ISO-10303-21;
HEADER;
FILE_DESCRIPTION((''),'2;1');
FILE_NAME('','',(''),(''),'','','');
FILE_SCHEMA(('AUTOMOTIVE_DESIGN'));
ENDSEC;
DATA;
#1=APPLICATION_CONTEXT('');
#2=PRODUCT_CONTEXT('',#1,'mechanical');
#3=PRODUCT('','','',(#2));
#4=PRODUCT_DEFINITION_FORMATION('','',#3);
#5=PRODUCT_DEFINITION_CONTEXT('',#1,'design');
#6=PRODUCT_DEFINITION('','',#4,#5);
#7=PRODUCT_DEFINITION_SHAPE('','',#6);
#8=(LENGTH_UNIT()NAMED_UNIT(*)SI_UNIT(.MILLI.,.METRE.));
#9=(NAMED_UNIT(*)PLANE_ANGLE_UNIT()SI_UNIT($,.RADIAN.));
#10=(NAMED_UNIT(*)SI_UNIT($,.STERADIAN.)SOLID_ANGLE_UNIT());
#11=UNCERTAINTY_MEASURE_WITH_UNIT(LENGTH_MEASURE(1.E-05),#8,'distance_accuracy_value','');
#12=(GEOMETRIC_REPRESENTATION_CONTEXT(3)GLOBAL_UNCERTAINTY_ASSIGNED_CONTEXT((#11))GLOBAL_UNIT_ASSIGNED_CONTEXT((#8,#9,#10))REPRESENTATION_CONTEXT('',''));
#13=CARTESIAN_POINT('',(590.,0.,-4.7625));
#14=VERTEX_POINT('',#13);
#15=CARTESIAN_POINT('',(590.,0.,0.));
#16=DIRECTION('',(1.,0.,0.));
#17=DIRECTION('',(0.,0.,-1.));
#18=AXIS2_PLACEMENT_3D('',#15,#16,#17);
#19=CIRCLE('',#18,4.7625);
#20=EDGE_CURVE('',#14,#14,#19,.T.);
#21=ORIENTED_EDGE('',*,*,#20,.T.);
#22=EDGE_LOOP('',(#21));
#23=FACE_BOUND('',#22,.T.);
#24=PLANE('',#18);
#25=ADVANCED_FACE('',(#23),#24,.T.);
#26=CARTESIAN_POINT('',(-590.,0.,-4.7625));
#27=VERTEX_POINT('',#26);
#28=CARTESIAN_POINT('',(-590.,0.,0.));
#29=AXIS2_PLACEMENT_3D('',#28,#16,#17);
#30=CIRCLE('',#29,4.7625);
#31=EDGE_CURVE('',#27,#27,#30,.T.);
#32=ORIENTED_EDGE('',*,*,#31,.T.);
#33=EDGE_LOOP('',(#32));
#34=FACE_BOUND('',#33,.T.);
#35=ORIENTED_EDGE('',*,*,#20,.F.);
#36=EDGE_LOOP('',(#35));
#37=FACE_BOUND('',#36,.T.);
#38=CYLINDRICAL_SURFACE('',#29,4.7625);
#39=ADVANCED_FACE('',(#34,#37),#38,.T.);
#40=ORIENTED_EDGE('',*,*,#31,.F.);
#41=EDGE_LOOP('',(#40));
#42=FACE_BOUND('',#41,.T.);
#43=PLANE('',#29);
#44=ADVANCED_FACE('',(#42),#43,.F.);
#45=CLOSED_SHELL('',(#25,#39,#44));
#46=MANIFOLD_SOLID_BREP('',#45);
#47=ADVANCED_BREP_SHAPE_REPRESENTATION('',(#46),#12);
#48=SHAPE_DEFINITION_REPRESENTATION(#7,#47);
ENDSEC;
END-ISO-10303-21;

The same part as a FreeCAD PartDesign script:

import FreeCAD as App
import Part
import Sketcher
Q = App.Units.Quantity

doc = App.newDocument("Part")
body = doc.addObject("PartDesign::Body", "Body")

# Sketch on YZ plane
sketch1 = doc.addObject("Sketcher::SketchObject", "Sketch")
body.addObject(sketch1)
sketch1.AttachmentSupport = (doc.YZ_Plane, [""])
sketch1.MapMode = "FlatFace"
sketch1.AttachmentOffset = App.Placement(App.Vector(0, 0, -590), App.Rotation())
sketch1.addGeometry(Part.Circle(App.Vector(0, 0, 0), App.Vector(0, 0, 1), 4.8), False)
sketch1.addConstraint([
    Sketcher.Constraint("Coincident", 0, 3, -1, 1),
    Sketcher.Constraint("Diameter", 0, Q("9.525 mm")),
])

# Sketch on XY plane
sketch2 = doc.addObject("Sketcher::SketchObject", "Sketch001")
body.addObject(sketch2)
sketch2.AttachmentSupport = (doc.XY_Plane, [""])
sketch2.MapMode = "FlatFace"
sketch2.addGeometry(Part.LineSegment(App.Vector(-590, 0, 0), App.Vector(590, 0, 0)), False)
sketch2.addConstraint([
    Sketcher.Constraint("Horizontal", 0),
    Sketcher.Constraint("Symmetric", 0, 1, 0, 2, -1, 1),
    Sketcher.Constraint("DistanceX", 0, 1, 0, 2, Q("1180 mm")),
])
doc.recompute()

additivepipe = doc.addObject("PartDesign::AdditivePipe", "AdditivePipe")
body.addObject(additivepipe)
additivepipe.Profile = sketch1
additivepipe.Spine = (sketch2, ["Edge1"])

doc.recompute()
